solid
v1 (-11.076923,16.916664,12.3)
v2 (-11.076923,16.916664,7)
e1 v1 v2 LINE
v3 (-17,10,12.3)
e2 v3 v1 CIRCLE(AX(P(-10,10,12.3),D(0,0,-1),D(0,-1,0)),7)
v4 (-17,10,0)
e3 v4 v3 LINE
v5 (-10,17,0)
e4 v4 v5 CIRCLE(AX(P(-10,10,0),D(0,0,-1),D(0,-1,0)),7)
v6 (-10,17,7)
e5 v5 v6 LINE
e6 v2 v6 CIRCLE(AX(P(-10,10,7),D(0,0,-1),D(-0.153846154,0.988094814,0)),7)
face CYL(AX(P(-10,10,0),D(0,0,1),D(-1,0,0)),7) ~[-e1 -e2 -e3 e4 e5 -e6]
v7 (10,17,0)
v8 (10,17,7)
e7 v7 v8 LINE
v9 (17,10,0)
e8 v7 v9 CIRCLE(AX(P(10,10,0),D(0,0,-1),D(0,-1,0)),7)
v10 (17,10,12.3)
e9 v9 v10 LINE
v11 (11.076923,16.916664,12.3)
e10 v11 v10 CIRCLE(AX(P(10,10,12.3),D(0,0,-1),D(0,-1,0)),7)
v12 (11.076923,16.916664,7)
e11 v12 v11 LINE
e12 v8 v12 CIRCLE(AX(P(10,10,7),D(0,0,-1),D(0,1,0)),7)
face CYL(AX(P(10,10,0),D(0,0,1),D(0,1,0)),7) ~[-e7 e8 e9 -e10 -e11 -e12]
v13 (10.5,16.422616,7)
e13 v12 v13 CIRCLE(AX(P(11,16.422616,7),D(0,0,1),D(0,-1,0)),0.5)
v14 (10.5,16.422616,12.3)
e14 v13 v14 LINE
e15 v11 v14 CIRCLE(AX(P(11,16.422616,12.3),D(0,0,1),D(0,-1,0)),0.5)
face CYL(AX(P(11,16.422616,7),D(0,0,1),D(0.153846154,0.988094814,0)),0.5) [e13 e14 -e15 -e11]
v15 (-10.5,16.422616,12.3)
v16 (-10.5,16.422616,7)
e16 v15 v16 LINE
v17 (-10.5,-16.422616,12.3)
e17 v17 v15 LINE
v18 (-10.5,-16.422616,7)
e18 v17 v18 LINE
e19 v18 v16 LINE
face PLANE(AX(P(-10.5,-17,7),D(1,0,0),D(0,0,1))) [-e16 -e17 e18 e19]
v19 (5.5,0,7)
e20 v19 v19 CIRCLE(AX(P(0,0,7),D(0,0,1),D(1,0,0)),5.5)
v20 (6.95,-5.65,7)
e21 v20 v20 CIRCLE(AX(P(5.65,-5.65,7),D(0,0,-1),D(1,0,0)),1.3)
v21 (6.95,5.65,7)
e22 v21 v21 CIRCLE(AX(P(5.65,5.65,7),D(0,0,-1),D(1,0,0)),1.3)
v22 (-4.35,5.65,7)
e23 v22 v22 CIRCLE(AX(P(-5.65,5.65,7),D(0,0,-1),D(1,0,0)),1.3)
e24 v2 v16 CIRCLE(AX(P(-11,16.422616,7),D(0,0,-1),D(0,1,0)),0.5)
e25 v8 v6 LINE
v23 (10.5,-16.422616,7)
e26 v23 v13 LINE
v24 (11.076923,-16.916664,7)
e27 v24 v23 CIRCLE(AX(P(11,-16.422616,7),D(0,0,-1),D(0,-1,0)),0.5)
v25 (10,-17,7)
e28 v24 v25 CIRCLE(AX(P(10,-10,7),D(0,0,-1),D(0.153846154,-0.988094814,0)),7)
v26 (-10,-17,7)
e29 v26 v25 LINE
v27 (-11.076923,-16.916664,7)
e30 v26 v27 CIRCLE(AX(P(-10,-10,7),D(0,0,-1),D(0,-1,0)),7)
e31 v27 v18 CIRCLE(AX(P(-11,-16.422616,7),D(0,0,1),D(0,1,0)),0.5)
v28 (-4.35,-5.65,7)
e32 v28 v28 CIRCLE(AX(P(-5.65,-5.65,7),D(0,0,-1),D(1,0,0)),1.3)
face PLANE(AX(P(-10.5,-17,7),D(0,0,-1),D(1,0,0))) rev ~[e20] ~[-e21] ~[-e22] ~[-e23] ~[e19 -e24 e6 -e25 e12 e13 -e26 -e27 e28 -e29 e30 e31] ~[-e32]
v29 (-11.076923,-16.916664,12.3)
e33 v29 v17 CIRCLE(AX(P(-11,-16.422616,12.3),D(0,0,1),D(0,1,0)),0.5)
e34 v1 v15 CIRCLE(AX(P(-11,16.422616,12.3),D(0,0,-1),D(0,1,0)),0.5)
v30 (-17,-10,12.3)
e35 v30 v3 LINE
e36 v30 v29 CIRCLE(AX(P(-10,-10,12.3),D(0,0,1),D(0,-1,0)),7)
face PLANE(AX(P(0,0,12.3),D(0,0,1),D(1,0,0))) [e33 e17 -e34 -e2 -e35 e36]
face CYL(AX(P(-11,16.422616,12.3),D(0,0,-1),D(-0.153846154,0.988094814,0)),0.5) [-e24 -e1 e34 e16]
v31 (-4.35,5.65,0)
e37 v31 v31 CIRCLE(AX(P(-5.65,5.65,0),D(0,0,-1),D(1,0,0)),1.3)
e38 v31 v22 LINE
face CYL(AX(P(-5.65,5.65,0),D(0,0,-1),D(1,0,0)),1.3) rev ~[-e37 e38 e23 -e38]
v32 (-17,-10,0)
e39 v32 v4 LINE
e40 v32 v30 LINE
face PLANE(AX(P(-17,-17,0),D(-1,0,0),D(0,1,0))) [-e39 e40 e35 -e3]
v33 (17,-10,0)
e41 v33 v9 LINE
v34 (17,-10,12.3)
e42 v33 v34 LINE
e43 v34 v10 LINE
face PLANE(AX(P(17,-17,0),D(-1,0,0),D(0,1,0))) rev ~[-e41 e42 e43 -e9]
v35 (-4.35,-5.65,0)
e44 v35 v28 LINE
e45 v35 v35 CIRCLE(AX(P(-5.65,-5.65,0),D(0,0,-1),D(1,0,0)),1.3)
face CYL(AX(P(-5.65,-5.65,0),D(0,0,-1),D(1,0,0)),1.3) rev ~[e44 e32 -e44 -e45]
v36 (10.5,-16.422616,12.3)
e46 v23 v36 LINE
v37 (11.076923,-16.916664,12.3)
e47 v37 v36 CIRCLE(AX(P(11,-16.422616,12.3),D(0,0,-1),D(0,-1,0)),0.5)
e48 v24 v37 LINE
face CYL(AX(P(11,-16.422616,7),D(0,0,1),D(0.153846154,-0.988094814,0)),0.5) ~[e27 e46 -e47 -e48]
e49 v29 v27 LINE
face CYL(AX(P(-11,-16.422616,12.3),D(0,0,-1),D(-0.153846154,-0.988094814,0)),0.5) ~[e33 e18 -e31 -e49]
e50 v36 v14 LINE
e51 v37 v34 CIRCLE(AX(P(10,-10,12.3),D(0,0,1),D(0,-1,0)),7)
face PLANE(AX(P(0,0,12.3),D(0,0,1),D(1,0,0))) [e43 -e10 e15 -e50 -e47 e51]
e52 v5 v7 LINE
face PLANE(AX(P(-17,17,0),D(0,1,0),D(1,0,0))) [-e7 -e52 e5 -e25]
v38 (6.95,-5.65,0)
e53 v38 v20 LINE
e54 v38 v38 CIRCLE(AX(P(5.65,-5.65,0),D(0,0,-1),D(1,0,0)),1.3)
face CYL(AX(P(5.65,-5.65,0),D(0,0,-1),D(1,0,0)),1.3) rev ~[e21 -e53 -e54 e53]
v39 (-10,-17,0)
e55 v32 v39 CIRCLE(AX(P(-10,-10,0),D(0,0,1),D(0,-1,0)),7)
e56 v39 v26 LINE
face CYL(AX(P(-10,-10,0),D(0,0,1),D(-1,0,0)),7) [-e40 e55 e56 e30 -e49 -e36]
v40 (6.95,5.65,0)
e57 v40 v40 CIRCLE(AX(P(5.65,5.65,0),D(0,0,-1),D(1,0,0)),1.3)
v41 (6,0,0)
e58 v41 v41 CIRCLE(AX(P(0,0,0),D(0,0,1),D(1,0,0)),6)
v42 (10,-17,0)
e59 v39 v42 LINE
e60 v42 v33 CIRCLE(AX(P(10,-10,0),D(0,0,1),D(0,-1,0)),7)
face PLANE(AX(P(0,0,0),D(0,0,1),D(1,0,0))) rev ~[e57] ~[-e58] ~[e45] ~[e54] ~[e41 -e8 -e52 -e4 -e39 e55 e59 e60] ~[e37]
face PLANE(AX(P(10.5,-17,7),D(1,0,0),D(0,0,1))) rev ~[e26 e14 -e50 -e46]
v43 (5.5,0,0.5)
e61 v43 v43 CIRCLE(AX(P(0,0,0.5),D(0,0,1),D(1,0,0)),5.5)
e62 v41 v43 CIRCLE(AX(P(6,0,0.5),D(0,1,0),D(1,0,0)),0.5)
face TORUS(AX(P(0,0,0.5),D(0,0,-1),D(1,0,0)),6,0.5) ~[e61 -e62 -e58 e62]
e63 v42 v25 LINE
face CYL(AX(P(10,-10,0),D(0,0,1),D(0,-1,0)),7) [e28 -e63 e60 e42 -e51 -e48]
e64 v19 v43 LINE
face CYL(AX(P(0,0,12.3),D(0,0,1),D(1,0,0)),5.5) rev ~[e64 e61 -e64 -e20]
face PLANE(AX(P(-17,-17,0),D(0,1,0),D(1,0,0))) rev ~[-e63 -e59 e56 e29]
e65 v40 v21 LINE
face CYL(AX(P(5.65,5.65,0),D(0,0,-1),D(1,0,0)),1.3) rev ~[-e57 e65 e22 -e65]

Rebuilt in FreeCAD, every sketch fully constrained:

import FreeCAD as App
import Part
import Sketcher

V = App.Vector
Q = App.Units.Quantity


def edges_at(feature, points):
    """Names of the edges that pass closest to the given points."""
    edges = feature.Shape.Edges
    near = lambda p: min(range(len(edges)), key=lambda i: edges[i].distToShape(Part.Vertex(*p))[0])
    return sorted({f"Edge{near(p) + 1}" for p in points})

doc = App.newDocument("Part")
body = doc.addObject("PartDesign::Body", "Body")

# Sketch on XY plane
sketch1 = doc.addObject("Sketcher::SketchObject", "Sketch")
body.addObject(sketch1)
sketch1.AttachmentSupport = (doc.XY_Plane, [""])
sketch1.MapMode = "FlatFace"
sketch1.addGeometry([
    Part.LineSegment(V(-17, 17, 0), V(-17, -17, 0)),
    Part.LineSegment(V(-17, -17, 0), V(17, -17, 0)),
    Part.LineSegment(V(17, -17, 0), V(17, 17, 0)),
    Part.LineSegment(V(17, 17, 0), V(-17, 17, 0)),
], False)
sketch1.addConstraint([
    Sketcher.Constraint("Coincident", 0, 2, 1, 1),
    Sketcher.Constraint("Coincident", 1, 2, 2, 1),
    Sketcher.Constraint("Coincident", 2, 2, 3, 1),
    Sketcher.Constraint("Coincident", 3, 2, 0, 1),
    Sketcher.Constraint("Vertical", 0),
    Sketcher.Constraint("Horizontal", 1),
    Sketcher.Constraint("Vertical", 2),
    Sketcher.Constraint("Horizontal", 3),
    Sketcher.Constraint("Symmetric", 0, 2, 2, 2, -1, 1),
    Sketcher.Constraint("Equal", 3, 0),
    Sketcher.Constraint("DistanceX", 1, 1, 1, 2, Q("34 mm")),
])
pad1 = doc.addObject("PartDesign::Pad", "Pad")
body.addObject(pad1)
pad1.Profile = sketch1
pad1.Length = 12.3

# Sketch on XY plane
sketch2 = doc.addObject("Sketcher::SketchObject", "Sketch001")
body.addObject(sketch2)
sketch2.AttachmentSupport = (doc.XY_Plane, [""])
sketch2.MapMode = "FlatFace"
sketch2.AttachmentOffset = App.Placement(V(0, 0, 12.3), App.Rotation())
sketch2.addGeometry(Part.Circle(V(0, 0, 0), V(0, 0, 1), 6), False)
sketch2.addConstraint([
    Sketcher.Constraint("Coincident", 0, 3, -1, 1),
    Sketcher.Constraint("Diameter", 0, Q("11 mm")),
])
pocket1 = doc.addObject("PartDesign::Pocket", "Pocket")
body.addObject(pocket1)
pocket1.Profile = sketch2
pocket1.Type = "ThroughAll"

# Sketch on XY plane
sketch3 = doc.addObject("Sketcher::SketchObject", "Sketch002")
body.addObject(sketch3)
sketch3.AttachmentSupport = (doc.XY_Plane, [""])
sketch3.MapMode = "FlatFace"
sketch3.addGeometry([
    Part.Circle(V(-5.7, -5.7, 0), V(0, 0, 1), 1.3),
    Part.Circle(V(-5.7, 5.7, 0), V(0, 0, 1), 1.3),
    Part.Circle(V(5.7, -5.7, 0), V(0, 0, 1), 1.3),
    Part.Circle(V(5.7, 5.7, 0), V(0, 0, 1), 1.3),
], False)
sketch3.addConstraint([
    Sketcher.Constraint("Equal", 0, 1),
    Sketcher.Constraint("Equal", 1, 2),
    Sketcher.Constraint("Equal", 2, 3),
    Sketcher.Constraint("Symmetric", 1, 3, 2, 3, -1, 1),
    Sketcher.Constraint("Symmetric", 0, 3, 3, 3, -1, 1),
    Sketcher.Constraint("Symmetric", 0, 3, 2, 3, -2),
    Sketcher.Constraint("Diameter", 0, Q("2.6 mm")),
    Sketcher.Constraint("DistanceY", 0, 3, 1, 3, Q("11.3 mm")),
    Sketcher.Constraint("DistanceX", 0, 3, 2, 3, Q("11.3 mm")),
])
pocket2 = doc.addObject("PartDesign::Pocket", "Pocket001")
body.addObject(pocket2)
pocket2.Profile = sketch3
pocket2.Type = "ThroughAll"
pocket2.Reversed = True

# Sketch on XZ plane
sketch4 = doc.addObject("Sketcher::SketchObject", "Sketch003")
body.addObject(sketch4)
sketch4.AttachmentSupport = (doc.XZ_Plane, [""])
sketch4.MapMode = "FlatFace"
sketch4.AttachmentOffset = App.Placement(V(0, 0, 17), App.Rotation())
sketch4.addGeometry([
    Part.LineSegment(V(-10, 12, 0), V(-10, 7, 0)),
    Part.LineSegment(V(-10, 7, 0), V(10, 7, 0)),
    Part.LineSegment(V(10, 7, 0), V(10, 12, 0)),
    Part.LineSegment(V(10, 12, 0), V(-10, 12, 0)),
], False)
sketch4.addConstraint([
    Sketcher.Constraint("Coincident", 0, 2, 1, 1),
    Sketcher.Constraint("Coincident", 1, 2, 2, 1),
    Sketcher.Constraint("Coincident", 2, 2, 3, 1),
    Sketcher.Constraint("Coincident", 3, 2, 0, 1),
    Sketcher.Constraint("Vertical", 0),
    Sketcher.Constraint("Horizontal", 1),
    Sketcher.Constraint("Vertical", 2),
    Sketcher.Constraint("Horizontal", 3),
    Sketcher.Constraint("DistanceX", 1, 1, 1, 2, Q("21 mm")),
    Sketcher.Constraint("DistanceY", 0, 2, 0, 1, Q("5.3 mm")),
    Sketcher.Constraint("DistanceY", -1, 1, 0, 2, Q("7 mm")),
    Sketcher.Constraint("DistanceX", 0, 2, -1, 1, Q("10.5 mm")),
])
pocket3 = doc.addObject("PartDesign::Pocket", "Pocket002")
body.addObject(pocket3)
pocket3.Profile = sketch4
pocket3.Type = "ThroughAll"
doc.recompute()

fillet = doc.addObject("PartDesign::Fillet", "Fillet")
body.addObject(fillet)
fillet.Base = (pocket3, edges_at(pocket3, [
    (-17, -17, 6.15),
    (17, -17, 6.15),
    (17, 17, 6.15),
    (-17, 17, 6.15),
]))
fillet.Radius = 7
doc.recompute()

fillet2 = doc.addObject("PartDesign::Fillet", "Fillet001")
body.addObject(fillet2)
fillet2.Base = (fillet, edges_at(fillet, [
    (-5.5, 0, 0),
    (-10.5, 16.982, 9.65),
    (-10.5, -16.982, 9.65),
    (10.5, -16.982, 9.65),
    (10.5, 16.982, 9.65),
]))
fillet2.Radius = 0.5

doc.recompute()
